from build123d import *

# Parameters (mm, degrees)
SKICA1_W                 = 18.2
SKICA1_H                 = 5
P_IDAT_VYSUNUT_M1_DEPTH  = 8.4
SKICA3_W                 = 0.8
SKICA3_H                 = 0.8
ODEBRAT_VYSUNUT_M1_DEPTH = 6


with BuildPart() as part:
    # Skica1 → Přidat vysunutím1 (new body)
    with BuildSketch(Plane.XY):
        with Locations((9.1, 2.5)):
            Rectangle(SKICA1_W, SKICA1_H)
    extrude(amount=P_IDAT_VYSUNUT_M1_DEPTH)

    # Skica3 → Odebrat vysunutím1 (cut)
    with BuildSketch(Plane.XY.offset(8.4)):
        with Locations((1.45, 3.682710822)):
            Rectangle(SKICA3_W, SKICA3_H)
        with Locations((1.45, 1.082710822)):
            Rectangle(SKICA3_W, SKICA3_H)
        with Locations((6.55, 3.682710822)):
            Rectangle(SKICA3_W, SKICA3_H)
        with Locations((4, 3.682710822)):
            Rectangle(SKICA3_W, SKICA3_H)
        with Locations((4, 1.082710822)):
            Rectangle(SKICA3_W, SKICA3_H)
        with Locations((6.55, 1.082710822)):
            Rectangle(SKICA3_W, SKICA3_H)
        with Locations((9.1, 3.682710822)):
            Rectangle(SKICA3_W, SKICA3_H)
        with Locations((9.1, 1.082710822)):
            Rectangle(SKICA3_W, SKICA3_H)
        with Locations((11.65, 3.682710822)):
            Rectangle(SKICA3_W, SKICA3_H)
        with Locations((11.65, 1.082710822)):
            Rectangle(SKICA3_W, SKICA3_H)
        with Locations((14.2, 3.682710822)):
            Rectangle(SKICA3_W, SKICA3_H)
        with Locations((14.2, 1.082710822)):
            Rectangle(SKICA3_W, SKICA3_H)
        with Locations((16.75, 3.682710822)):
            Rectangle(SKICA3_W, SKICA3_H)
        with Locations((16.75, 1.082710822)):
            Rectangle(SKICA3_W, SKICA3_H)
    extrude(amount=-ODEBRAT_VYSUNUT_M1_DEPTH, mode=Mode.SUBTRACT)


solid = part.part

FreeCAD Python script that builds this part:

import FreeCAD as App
import Part
import Sketcher
from FreeCAD import Vector


def add_polygon(sketch, points):
    """Adds a closed chain of lines whose ends are joined by coincident constraints."""
    first, n = sketch.GeometryCount, len(points)
    for a, b in zip(points, points[1:] + points[:1]):
        sketch.addGeometry(Part.LineSegment(App.Vector(*a, 0), App.Vector(*b, 0)), False)
    for i in range(n):
        sketch.addConstraint(Sketcher.Constraint("Coincident", first + i, 2, first + (i + 1) % n, 1))

doc = App.newDocument("Part")
body = doc.addObject("PartDesign::Body", "Body")

sketch1 = doc.addObject("Sketcher::SketchObject", "Sketch")
body.addObject(sketch1)
sketch1.AttachmentSupport = (doc.XY_Plane, [""])
sketch1.MapMode = "FlatFace"
add_polygon(sketch1, [(0, 5), (0, 0), (18, 0), (18, 5)])
sketch1.addConstraint([
    Sketcher.Constraint("Vertical", 0),
    Sketcher.Constraint("Horizontal", 1),
    Sketcher.Constraint("Vertical", 2),
    Sketcher.Constraint("Horizontal", 3),
    Sketcher.Constraint("Coincident", 0, 2, -1, 1),
    Sketcher.Constraint("DistanceY", 0, 2, 0, 1, 5.0),
    Sketcher.Constraint("DistanceX", 1, 1, 1, 2, 18.2),
])
pad1 = doc.addObject("PartDesign::Pad", "Pad")
body.addObject(pad1)
pad1.Profile = sketch1
pad1.Length = 8.4

sketch2 = doc.addObject("Sketcher::SketchObject", "Sketch001")
body.addObject(sketch2)
sketch2.AttachmentSupport = (doc.XY_Plane, [""])
sketch2.MapMode = "FlatFace"
sketch2.AttachmentOffset = App.Placement(Vector(0, 0, 8.4), App.Rotation())
add_polygon(sketch2, [(1.1, 4.1), (1.1, 3.3), (1.9, 3.3), (1.9, 4.1)])
add_polygon(sketch2, [(1.1, 1.5), (1.1, 0.7), (1.9, 0.7), (1.9, 1.5)])
add_polygon(sketch2, [(6.2, 4.1), (6.2, 3.3), (7, 3.3), (7, 4.1)])
add_polygon(sketch2, [(3.6, 4.1), (3.6, 3.3), (4.4, 3.3), (4.4, 4.1)])
add_polygon(sketch2, [(3.6, 1.5), (3.6, 0.7), (4.4, 0.7), (4.4, 1.5)])
add_polygon(sketch2, [(6.2, 1.5), (6.2, 0.7), (7, 0.7), (7, 1.5)])
add_polygon(sketch2, [(8.7, 4.1), (8.7, 3.3), (9.5, 3.3), (9.5, 4.1)])
add_polygon(sketch2, [(8.7, 1.5), (8.7, 0.7), (9.5, 0.7), (9.5, 1.5)])
add_polygon(sketch2, [(11.2, 4.1), (11.2, 3.3), (12.1, 3.3), (12.1, 4.1)])
add_polygon(sketch2, [(11.2, 1.5), (11.2, 0.7), (12.1, 0.7), (12.1, 1.5)])
add_polygon(sketch2, [(13.8, 4.1), (13.8, 3.3), (14.6, 3.3), (14.6, 4.1)])
add_polygon(sketch2, [(13.8, 1.5), (13.8, 0.7), (14.6, 0.7), (14.6, 1.5)])
add_polygon(sketch2, [(16.4, 4.1), (16.4, 3.3), (17.1, 3.3), (17.1, 4.1)])
add_polygon(sketch2, [(16.4, 1.5), (16.4, 0.7), (17.1, 0.7), (17.1, 1.5)])
sketch2.addConstraint([
    Sketcher.Constraint("Vertical", 0),
    Sketcher.Constraint("Horizontal", 1),
    Sketcher.Constraint("Vertical", 2),
    Sketcher.Constraint("Horizontal", 3),
    Sketcher.Constraint("Vertical", 4),
    Sketcher.Constraint("Horizontal", 5),
    Sketcher.Constraint("Vertical", 6),
    Sketcher.Constraint("Horizontal", 7),
    Sketcher.Constraint("Vertical", 8),
    Sketcher.Constraint("Horizontal", 9),
    Sketcher.Constraint("Vertical", 10),
    Sketcher.Constraint("Horizontal", 11),
    Sketcher.Constraint("Vertical", 12),
    Sketcher.Constraint("Horizontal", 13),
    Sketcher.Constraint("Vertical", 14),
    Sketcher.Constraint("Horizontal", 15),
    Sketcher.Constraint("Vertical", 16),
    Sketcher.Constraint("Horizontal", 17),
    Sketcher.Constraint("Vertical", 18),
    Sketcher.Constraint("Horizontal", 19),
    Sketcher.Constraint("Vertical", 20),
    Sketcher.Constraint("Horizontal", 21),
    Sketcher.Constraint("Vertical", 22),
    Sketcher.Constraint("Horizontal", 23),
    Sketcher.Constraint("Vertical", 24),
    Sketcher.Constraint("Horizontal", 25),
    Sketcher.Constraint("Vertical", 26),
    Sketcher.Constraint("Horizontal", 27),
    Sketcher.Constraint("Vertical", 28),
    Sketcher.Constraint("Horizontal", 29),
    Sketcher.Constraint("Vertical", 30),
    Sketcher.Constraint("Horizontal", 31),
    Sketcher.Constraint("Vertical", 32),
    Sketcher.Constraint("Horizontal", 33),
    Sketcher.Constraint("Vertical", 34),
    Sketcher.Constraint("Horizontal", 35),
    Sketcher.Constraint("Vertical", 36),
    Sketcher.Constraint("Horizontal", 37),
    Sketcher.Constraint("Vertical", 38),
    Sketcher.Constraint("Horizontal", 39),
    Sketcher.Constraint("Vertical", 40),
    Sketcher.Constraint("Horizontal", 41),
    Sketcher.Constraint("Vertical", 42),
    Sketcher.Constraint("Horizontal", 43),
    Sketcher.Constraint("Vertical", 44),
    Sketcher.Constraint("Horizontal", 45),
    Sketcher.Constraint("Vertical", 46),
    Sketcher.Constraint("Horizontal", 47),
    Sketcher.Constraint("Vertical", 48),
    Sketcher.Constraint("Horizontal", 49),
    Sketcher.Constraint("Vertical", 50),
    Sketcher.Constraint("Horizontal", 51),
    Sketcher.Constraint("Vertical", 52),
    Sketcher.Constraint("Horizontal", 53),
    Sketcher.Constraint("Vertical", 54),
    Sketcher.Constraint("Horizontal", 55),
    Sketcher.Constraint("Horizontal", 1, 2, 8, 2),
    Sketcher.Constraint("Horizontal", 3, 2, 10, 2),
    Sketcher.Constraint("Horizontal", 9, 2, 12, 2),
    Sketcher.Constraint("Horizontal", 11, 2, 14, 2),
    Sketcher.Constraint("Horizontal", 5, 2, 16, 2),
    Sketcher.Constraint("Horizontal", 7, 2, 18, 2),
    Sketcher.Constraint("Horizontal", 17, 2, 20, 2),
    Sketcher.Constraint("Horizontal", 19, 2, 22, 2),
    Sketcher.Constraint("Horizontal", 13, 2, 24, 2),
    Sketcher.Constraint("Horizontal", 15, 2, 26, 2),
    Sketcher.Constraint("Horizontal", 21, 2, 28, 2),
    Sketcher.Constraint("Horizontal", 23, 2, 30, 2),
    Sketcher.Constraint("Horizontal", 25, 2, 32, 2),
    Sketcher.Constraint("Horizontal", 27, 2, 34, 2),
    Sketcher.Constraint("Horizontal", 29, 2, 36, 2),
    Sketcher.Constraint("Horizontal", 31, 2, 38, 2),
    Sketcher.Constraint("Horizontal", 33, 2, 40, 2),
    Sketcher.Constraint("Horizontal", 35, 2, 42, 2),
    Sketcher.Constraint("Horizontal", 37, 2, 44, 2),
    Sketcher.Constraint("Horizontal", 39, 2, 46, 2),
    Sketcher.Constraint("Horizontal", 41, 2, 48, 2),
    Sketcher.Constraint("Horizontal", 43, 2, 50, 2),
    Sketcher.Constraint("Horizontal", 45, 2, 52, 2),
    Sketcher.Constraint("Horizontal", 47, 2, 54, 2),
    Sketcher.Constraint("Vertical", 3, 2, 4, 2),
    Sketcher.Constraint("Vertical", 2, 2, 5, 2),
    Sketcher.Constraint("Vertical", 15, 2, 16, 2),
    Sketcher.Constraint("Vertical", 14, 2, 17, 2),
    Sketcher.Constraint("Vertical", 11, 2, 20, 2),
    Sketcher.Constraint("Vertical", 10, 2, 21, 2),
    Sketcher.Constraint("Vertical", 27, 2, 28, 2),
    Sketcher.Constraint("Vertical", 26, 2, 29, 2),
    Sketcher.Constraint("Vertical", 35, 2, 36, 2),
    Sketcher.Constraint("Vertical", 34, 2, 37, 2),
    Sketcher.Constraint("Vertical", 43, 2, 44, 2),
    Sketcher.Constraint("Vertical", 42, 2, 45, 2),
    Sketcher.Constraint("Vertical", 51, 2, 52, 2),
    Sketcher.Constraint("Vertical", 50, 2, 53, 2),
    Sketcher.Constraint("Equal", 7, 9),
    Sketcher.Constraint("Equal", 11, 13),
    Sketcher.Constraint("Equal", 23, 25),
    Sketcher.Constraint("Equal", 31, 33),
    Sketcher.Constraint("Equal", 39, 41),
    Sketcher.Constraint("Equal", 47, 49),
    Sketcher.Constraint("Equal", 55, 0),
    Sketcher.Constraint("Equal", 2, 4),
    Sketcher.Constraint("DistanceX", 1, 1, 1, 2, 0.8),
    Sketcher.Constraint("DistanceX", -1, 1, 12, 2, 3.6),
    Sketcher.Constraint("DistanceX", -1, 1, 24, 2, 8.7),
    Sketcher.Constraint("DistanceX", -1, 1, 40, 2, 13.8),
    Sketcher.Constraint("DistanceY", 4, 2, 0, 2, 2.6),
    Sketcher.Constraint("DistanceX", 1, 2, 8, 2, 4.3),
    Sketcher.Constraint("DistanceX", -1, 1, 0, 2, 1.05),
    Sketcher.Constraint("DistanceX", -1, 1, 32, 2, 11.25),
    Sketcher.Constraint("DistanceX", -1, 1, 48, 2, 16.35),
    Sketcher.Constraint("DistanceY", -1, 1, 0, 2, 3.282711),
])
pocket1 = doc.addObject("PartDesign::Pocket", "Pocket")
body.addObject(pocket1)
pocket1.Profile = sketch2
pocket1.Length = 6

doc.recompute()
